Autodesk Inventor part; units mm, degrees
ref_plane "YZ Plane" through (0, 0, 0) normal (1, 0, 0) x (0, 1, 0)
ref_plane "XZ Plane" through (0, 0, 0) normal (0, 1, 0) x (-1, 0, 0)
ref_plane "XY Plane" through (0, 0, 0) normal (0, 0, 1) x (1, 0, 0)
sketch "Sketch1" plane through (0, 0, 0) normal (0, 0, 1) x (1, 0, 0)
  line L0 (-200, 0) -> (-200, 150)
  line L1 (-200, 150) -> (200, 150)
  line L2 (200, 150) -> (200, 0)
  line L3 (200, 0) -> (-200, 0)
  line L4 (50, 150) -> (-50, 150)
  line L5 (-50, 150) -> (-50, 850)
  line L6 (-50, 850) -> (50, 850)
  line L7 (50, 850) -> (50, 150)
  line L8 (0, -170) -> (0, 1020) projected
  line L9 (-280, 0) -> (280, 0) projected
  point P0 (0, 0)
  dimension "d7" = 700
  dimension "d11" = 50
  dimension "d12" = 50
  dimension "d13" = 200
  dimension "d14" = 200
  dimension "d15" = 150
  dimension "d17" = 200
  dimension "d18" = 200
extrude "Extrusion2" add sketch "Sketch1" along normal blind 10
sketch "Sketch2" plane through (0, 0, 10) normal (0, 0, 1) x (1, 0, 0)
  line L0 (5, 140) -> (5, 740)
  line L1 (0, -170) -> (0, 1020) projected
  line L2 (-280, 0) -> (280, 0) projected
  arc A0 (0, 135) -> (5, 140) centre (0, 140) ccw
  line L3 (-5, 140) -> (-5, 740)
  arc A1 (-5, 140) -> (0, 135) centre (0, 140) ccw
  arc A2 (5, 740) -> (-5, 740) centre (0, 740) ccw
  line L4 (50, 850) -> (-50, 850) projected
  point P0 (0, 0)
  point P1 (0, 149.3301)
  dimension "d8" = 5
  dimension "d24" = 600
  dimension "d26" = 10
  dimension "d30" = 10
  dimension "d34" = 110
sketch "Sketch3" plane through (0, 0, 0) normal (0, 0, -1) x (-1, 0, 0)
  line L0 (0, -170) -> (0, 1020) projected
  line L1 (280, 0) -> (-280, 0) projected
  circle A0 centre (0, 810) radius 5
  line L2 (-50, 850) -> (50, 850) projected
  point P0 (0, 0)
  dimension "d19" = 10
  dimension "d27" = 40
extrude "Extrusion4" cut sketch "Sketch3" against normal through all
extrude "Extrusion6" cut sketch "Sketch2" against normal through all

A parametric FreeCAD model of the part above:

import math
import FreeCAD as App
import Part
import Sketcher
Q = App.Units.Quantity


def add_polygon(sketch, points):
    """Adds a closed chain of lines whose ends are joined by coincident constraints."""
    first, n = sketch.GeometryCount, len(points)
    for a, b in zip(points, points[1:] + points[:1]):
        sketch.addGeometry(Part.LineSegment(App.Vector(*a, 0), App.Vector(*b, 0)), False)
    for i in range(n):
        sketch.addConstraint(Sketcher.Constraint("Coincident", first + i, 2, first + (i + 1) % n, 1))

doc = App.newDocument("Part")
params = doc.addObject("Spreadsheet::Sheet", "Params")
for row, (alias, value) in enumerate([
    ("sketch1_width", "150 mm"),
    ("sketch1_height", "700 mm"),
    ("pad1_length", "10 mm"),
    ("sketch2_diameter", "10 mm"),
    ("sketch3_radius", "5 mm"),
    ("sketch3_height", "600 mm"),
], start=1):
    params.set(f"A{row}", alias)
    params.set(f"B{row}", "=" + value)
    params.setAlias(f"B{row}", alias)

body = doc.addObject("PartDesign::Body", "Body")

# Sketch on XY plane
sketch1 = doc.addObject("Sketcher::SketchObject", "Sketch")
body.addObject(sketch1)
sketch1.AttachmentSupport = (doc.XY_Plane, [""])
sketch1.MapMode = "FlatFace"
add_polygon(sketch1, [(-200, 150), (-200, 0), (200, 0), (200, 150), (50, 150), (50, 850), (-50, 850), (-50, 150)])  # lines 0-7
sketch1.addConstraint(Sketcher.Constraint("Vertical", 0))
sketch1.addConstraint(Sketcher.Constraint("Horizontal", 1))
sketch1.addConstraint(Sketcher.Constraint("Vertical", 2))
sketch1.addConstraint(Sketcher.Constraint("Horizontal", 3))
sketch1.addConstraint(Sketcher.Constraint("Vertical", 4))
sketch1.addConstraint(Sketcher.Constraint("Horizontal", 5))
sketch1.addConstraint(Sketcher.Constraint("Vertical", 6))
sketch1.addConstraint(Sketcher.Constraint("Horizontal", 7))
sketch1.addConstraint(Sketcher.Constraint("Symmetric", 0, 2, 1, 2, -1, 1))
sketch1.addConstraint(Sketcher.Constraint("Symmetric", 3, 2, 6, 2, -2))
sketch1.addConstraint(Sketcher.Constraint("Equal", 7, 0))
sketch1.addConstraint(Sketcher.Constraint("DistanceX", 3, 2, 3, 1, Q("150 mm")))
sketch1.addConstraint(Sketcher.Constraint("DistanceY", 4, 1, 4, 2, Q("700 mm")))
sketch1.addConstraint(Sketcher.Constraint("DistanceX", 0, 2, -1, 1, Q("200 mm")))
sketch1.setExpression("Constraints[19]", "Params.sketch1_width")
sketch1.setExpression("Constraints[20]", "Params.sketch1_height")
pad1 = doc.addObject("PartDesign::Pad", "Pad")
body.addObject(pad1)
pad1.Profile = sketch1
pad1.setExpression("Length", "Params.pad1_length")

# Sketch on XY plane
sketch2 = doc.addObject("Sketcher::SketchObject", "Sketch001")
body.addObject(sketch2)
sketch2.AttachmentSupport = (doc.XY_Plane, [""])
sketch2.MapMode = "FlatFace"
sketch2.addGeometry(Part.Circle(App.Vector(0, 810, 0), App.Vector(0, 0, 1), 5), False)
sketch2.addConstraint(Sketcher.Constraint("PointOnObject", 0, 3, -2))
sketch2.addConstraint(Sketcher.Constraint("Diameter", 0, Q("10 mm")))
sketch2.addConstraint(Sketcher.Constraint("DistanceY", -1, 1, 0, 3, Q("810 mm")))
sketch2.setExpression("Constraints[1]", "Params.sketch2_diameter")
pocket1 = doc.addObject("PartDesign::Pocket", "Pocket")
body.addObject(pocket1)
pocket1.Profile = sketch2
pocket1.Type = "ThroughAll"
pocket1.Reversed = True

# Sketch on XY plane
sketch3 = doc.addObject("Sketcher::SketchObject", "Sketch002")
body.addObject(sketch3)
sketch3.AttachmentSupport = (doc.XY_Plane, [""])
sketch3.MapMode = "FlatFace"
sketch3.AttachmentOffset = App.Placement(App.Vector(0, 0, 10), App.Rotation())
sketch3.addGeometry(Part.LineSegment(App.Vector(5, 140, 0), App.Vector(5, 740, 0)), False)
sketch3.addGeometry(Part.ArcOfCircle(Part.Circle(App.Vector(0, 740, 0), App.Vector(0, 0, 1), 5), math.radians(0), math.radians(180)), False)
sketch3.addGeometry(Part.LineSegment(App.Vector(-5, 740, 0), App.Vector(-5, 140, 0)), False)
sketch3.addGeometry(Part.ArcOfCircle(Part.Circle(App.Vector(0, 140, 0), App.Vector(0, 0, 1), 5), math.radians(180), math.radians(360)), False)
sketch3.addConstraint(Sketcher.Constraint("Tangent", 0, 2, 1, 1))
sketch3.addConstraint(Sketcher.Constraint("Tangent", 1, 2, 2, 1))
sketch3.addConstraint(Sketcher.Constraint("Tangent", 2, 2, 3, 1))
sketch3.addConstraint(Sketcher.Constraint("Tangent", 3, 2, 0, 1))
sketch3.addConstraint(Sketcher.Constraint("Vertical", 0))
sketch3.addConstraint(Sketcher.Constraint("Vertical", 2))
sketch3.addConstraint(Sketcher.Constraint("PointOnObject", 1, 3, -2))
sketch3.addConstraint(Sketcher.Constraint("Radius", 1, Q("5 mm")))
sketch3.addConstraint(Sketcher.Constraint("DistanceY", 0, 1, 0, 2, Q("600 mm")))
sketch3.addConstraint(Sketcher.Constraint("DistanceY", -1, 1, 1, 3, Q("740 mm")))
sketch3.setExpression("Constraints[7]", "Params.sketch3_radius")
sketch3.setExpression("Constraints[8]", "Params.sketch3_height")
pocket2 = doc.addObject("PartDesign::Pocket", "Pocket001")
body.addObject(pocket2)
pocket2.Profile = sketch3
pocket2.Type = "ThroughAll"

doc.recompute()
